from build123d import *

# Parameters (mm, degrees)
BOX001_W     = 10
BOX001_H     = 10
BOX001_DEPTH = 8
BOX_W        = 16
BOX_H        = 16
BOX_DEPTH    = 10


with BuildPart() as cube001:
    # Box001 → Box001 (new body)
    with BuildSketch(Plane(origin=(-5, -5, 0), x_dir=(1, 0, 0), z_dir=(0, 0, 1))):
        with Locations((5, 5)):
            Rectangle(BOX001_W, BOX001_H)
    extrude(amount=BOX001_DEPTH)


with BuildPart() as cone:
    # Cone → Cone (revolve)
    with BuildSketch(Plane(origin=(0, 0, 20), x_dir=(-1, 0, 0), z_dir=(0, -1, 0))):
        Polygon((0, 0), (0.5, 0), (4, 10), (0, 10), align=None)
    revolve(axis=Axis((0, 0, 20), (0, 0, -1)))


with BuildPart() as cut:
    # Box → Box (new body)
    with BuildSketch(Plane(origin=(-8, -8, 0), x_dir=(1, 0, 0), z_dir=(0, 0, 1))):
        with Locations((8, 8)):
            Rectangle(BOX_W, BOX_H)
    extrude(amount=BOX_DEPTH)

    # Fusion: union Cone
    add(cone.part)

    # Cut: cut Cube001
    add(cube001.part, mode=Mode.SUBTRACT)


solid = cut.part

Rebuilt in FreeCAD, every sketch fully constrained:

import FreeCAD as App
import Part
import Sketcher

V = App.Vector
Q = App.Units.Quantity

doc = App.newDocument("Part")
body = doc.addObject("PartDesign::Body", "Body")

# Sketch on XY plane
sketch1 = body.newObject("Sketcher::SketchObject", "Sketch")
sketch1.AttachmentSupport = (doc.getObject("XY_Plane"), [""])
sketch1.MapMode = "FlatFace"
sketch1.addGeometry(Part.LineSegment(V(-5, 5, 0), V(-5, -5, 0)), False)
sketch1.addGeometry(Part.LineSegment(V(-5, -5, 0), V(5, -5, 0)), False)
sketch1.addGeometry(Part.LineSegment(V(5, -5, 0), V(5, 5, 0)), False)
sketch1.addGeometry(Part.LineSegment(V(5, 5, 0), V(-5, 5, 0)), False)
sketch1.addConstraint(Sketcher.Constraint("Coincident", 0, 2, 1, 1))
sketch1.addConstraint(Sketcher.Constraint("Coincident", 1, 2, 2, 1))
sketch1.addConstraint(Sketcher.Constraint("Coincident", 2, 2, 3, 1))
sketch1.addConstraint(Sketcher.Constraint("Coincident", 3, 2, 0, 1))
sketch1.addConstraint(Sketcher.Constraint("Vertical", 0))
sketch1.addConstraint(Sketcher.Constraint("Horizontal", 1))
sketch1.addConstraint(Sketcher.Constraint("Vertical", 2))
sketch1.addConstraint(Sketcher.Constraint("Horizontal", 3))
sketch1.addConstraint(Sketcher.Constraint("Symmetric", 0, 2, 2, 2, -1, 1))
sketch1.addConstraint(Sketcher.Constraint("Equal", 3, 0))
sketch1.addConstraint(Sketcher.Constraint("DistanceX", 1, 1, 1, 2, Q("10 mm")))
pad1 = body.newObject("PartDesign::Pad", "Pad")
pad1.Profile = sketch1
pad1.Length = 8
body2 = doc.addObject("PartDesign::Body", "Body001")

# Sketch on XZ plane
sketch2 = body2.newObject("Sketcher::SketchObject", "Sketch001")
sketch2.AttachmentSupport = (doc.getObject("XZ_Plane001"), [""])
sketch2.MapMode = "FlatFace"
sketch2.addGeometry(Part.LineSegment(V(0, 20, 0), V(-0.5, 20, 0)), False)
sketch2.addGeometry(Part.LineSegment(V(-0.5, 20, 0), V(-4, 10, 0)), False)
sketch2.addGeometry(Part.LineSegment(V(-4, 10, 0), V(0, 10, 0)), False)
sketch2.addGeometry(Part.LineSegment(V(0, 10, 0), V(0, 20, 0)), False)
sketch2.addConstraint(Sketcher.Constraint("Coincident", 0, 2, 1, 1))
sketch2.addConstraint(Sketcher.Constraint("Coincident", 1, 2, 2, 1))
sketch2.addConstraint(Sketcher.Constraint("Coincident", 2, 2, 3, 1))
sketch2.addConstraint(Sketcher.Constraint("Coincident", 3, 2, 0, 1))
sketch2.addConstraint(Sketcher.Constraint("Horizontal", 0))
sketch2.addConstraint(Sketcher.Constraint("Horizontal", 2))
sketch2.addConstraint(Sketcher.Constraint("Vertical", 3))
sketch2.addConstraint(Sketcher.Constraint("PointOnObject", 2, 2, -2))
sketch2.addConstraint(Sketcher.Constraint("DistanceX", 2, 1, 2, 2, Q("4 mm")))
sketch2.addConstraint(Sketcher.Constraint("DistanceY", 3, 1, 3, 2, Q("10 mm")))
sketch2.addConstraint(Sketcher.Constraint("DistanceX", 0, 2, 0, 1, Q("0.5 mm")))
sketch2.addConstraint(Sketcher.Constraint("DistanceY", -1, 1, 0, 2, Q("20 mm")))
revolution = body2.newObject("PartDesign::Revolution", "Revolution")
revolution.Profile = sketch2
revolution.ReferenceAxis = (sketch2, ["V_Axis"])
revolution.Angle = 360
body3 = doc.addObject("PartDesign::Body", "Body002")

# Sketch on XY plane
sketch3 = body3.newObject("Sketcher::SketchObject", "Sketch002")
sketch3.AttachmentSupport = (doc.getObject("XY_Plane002"), [""])
sketch3.MapMode = "FlatFace"
sketch3.addGeometry(Part.LineSegment(V(-8, 8, 0), V(-8, -8, 0)), False)
sketch3.addGeometry(Part.LineSegment(V(-8, -8, 0), V(8, -8, 0)), False)
sketch3.addGeometry(Part.LineSegment(V(8, -8, 0), V(8, 8, 0)), False)
sketch3.addGeometry(Part.LineSegment(V(8, 8, 0), V(-8, 8, 0)), False)
sketch3.addConstraint(Sketcher.Constraint("Coincident", 0, 2, 1, 1))
sketch3.addConstraint(Sketcher.Constraint("Coincident", 1, 2, 2, 1))
sketch3.addConstraint(Sketcher.Constraint("Coincident", 2, 2, 3, 1))
sketch3.addConstraint(Sketcher.Constraint("Coincident", 3, 2, 0, 1))
sketch3.addConstraint(Sketcher.Constraint("Vertical", 0))
sketch3.addConstraint(Sketcher.Constraint("Horizontal", 1))
sketch3.addConstraint(Sketcher.Constraint("Vertical", 2))
sketch3.addConstraint(Sketcher.Constraint("Horizontal", 3))
sketch3.addConstraint(Sketcher.Constraint("Symmetric", 0, 2, 2, 2, -1, 1))
sketch3.addConstraint(Sketcher.Constraint("Equal", 3, 0))
sketch3.addConstraint(Sketcher.Constraint("DistanceX", 1, 1, 1, 2, Q("16 mm")))
pad2 = body3.newObject("PartDesign::Pad", "Pad001")
pad2.Profile = sketch3
pad2.Length = 10
doc.recompute()

boolean = body3.newObject("PartDesign::Boolean", "Boolean")
boolean.Type = "Fuse"
boolean.addObjects([body2])
doc.recompute()

boolean2 = body3.newObject("PartDesign::Boolean", "Boolean001")
boolean2.Type = "Cut"
boolean2.addObjects([body])

doc.recompute()
